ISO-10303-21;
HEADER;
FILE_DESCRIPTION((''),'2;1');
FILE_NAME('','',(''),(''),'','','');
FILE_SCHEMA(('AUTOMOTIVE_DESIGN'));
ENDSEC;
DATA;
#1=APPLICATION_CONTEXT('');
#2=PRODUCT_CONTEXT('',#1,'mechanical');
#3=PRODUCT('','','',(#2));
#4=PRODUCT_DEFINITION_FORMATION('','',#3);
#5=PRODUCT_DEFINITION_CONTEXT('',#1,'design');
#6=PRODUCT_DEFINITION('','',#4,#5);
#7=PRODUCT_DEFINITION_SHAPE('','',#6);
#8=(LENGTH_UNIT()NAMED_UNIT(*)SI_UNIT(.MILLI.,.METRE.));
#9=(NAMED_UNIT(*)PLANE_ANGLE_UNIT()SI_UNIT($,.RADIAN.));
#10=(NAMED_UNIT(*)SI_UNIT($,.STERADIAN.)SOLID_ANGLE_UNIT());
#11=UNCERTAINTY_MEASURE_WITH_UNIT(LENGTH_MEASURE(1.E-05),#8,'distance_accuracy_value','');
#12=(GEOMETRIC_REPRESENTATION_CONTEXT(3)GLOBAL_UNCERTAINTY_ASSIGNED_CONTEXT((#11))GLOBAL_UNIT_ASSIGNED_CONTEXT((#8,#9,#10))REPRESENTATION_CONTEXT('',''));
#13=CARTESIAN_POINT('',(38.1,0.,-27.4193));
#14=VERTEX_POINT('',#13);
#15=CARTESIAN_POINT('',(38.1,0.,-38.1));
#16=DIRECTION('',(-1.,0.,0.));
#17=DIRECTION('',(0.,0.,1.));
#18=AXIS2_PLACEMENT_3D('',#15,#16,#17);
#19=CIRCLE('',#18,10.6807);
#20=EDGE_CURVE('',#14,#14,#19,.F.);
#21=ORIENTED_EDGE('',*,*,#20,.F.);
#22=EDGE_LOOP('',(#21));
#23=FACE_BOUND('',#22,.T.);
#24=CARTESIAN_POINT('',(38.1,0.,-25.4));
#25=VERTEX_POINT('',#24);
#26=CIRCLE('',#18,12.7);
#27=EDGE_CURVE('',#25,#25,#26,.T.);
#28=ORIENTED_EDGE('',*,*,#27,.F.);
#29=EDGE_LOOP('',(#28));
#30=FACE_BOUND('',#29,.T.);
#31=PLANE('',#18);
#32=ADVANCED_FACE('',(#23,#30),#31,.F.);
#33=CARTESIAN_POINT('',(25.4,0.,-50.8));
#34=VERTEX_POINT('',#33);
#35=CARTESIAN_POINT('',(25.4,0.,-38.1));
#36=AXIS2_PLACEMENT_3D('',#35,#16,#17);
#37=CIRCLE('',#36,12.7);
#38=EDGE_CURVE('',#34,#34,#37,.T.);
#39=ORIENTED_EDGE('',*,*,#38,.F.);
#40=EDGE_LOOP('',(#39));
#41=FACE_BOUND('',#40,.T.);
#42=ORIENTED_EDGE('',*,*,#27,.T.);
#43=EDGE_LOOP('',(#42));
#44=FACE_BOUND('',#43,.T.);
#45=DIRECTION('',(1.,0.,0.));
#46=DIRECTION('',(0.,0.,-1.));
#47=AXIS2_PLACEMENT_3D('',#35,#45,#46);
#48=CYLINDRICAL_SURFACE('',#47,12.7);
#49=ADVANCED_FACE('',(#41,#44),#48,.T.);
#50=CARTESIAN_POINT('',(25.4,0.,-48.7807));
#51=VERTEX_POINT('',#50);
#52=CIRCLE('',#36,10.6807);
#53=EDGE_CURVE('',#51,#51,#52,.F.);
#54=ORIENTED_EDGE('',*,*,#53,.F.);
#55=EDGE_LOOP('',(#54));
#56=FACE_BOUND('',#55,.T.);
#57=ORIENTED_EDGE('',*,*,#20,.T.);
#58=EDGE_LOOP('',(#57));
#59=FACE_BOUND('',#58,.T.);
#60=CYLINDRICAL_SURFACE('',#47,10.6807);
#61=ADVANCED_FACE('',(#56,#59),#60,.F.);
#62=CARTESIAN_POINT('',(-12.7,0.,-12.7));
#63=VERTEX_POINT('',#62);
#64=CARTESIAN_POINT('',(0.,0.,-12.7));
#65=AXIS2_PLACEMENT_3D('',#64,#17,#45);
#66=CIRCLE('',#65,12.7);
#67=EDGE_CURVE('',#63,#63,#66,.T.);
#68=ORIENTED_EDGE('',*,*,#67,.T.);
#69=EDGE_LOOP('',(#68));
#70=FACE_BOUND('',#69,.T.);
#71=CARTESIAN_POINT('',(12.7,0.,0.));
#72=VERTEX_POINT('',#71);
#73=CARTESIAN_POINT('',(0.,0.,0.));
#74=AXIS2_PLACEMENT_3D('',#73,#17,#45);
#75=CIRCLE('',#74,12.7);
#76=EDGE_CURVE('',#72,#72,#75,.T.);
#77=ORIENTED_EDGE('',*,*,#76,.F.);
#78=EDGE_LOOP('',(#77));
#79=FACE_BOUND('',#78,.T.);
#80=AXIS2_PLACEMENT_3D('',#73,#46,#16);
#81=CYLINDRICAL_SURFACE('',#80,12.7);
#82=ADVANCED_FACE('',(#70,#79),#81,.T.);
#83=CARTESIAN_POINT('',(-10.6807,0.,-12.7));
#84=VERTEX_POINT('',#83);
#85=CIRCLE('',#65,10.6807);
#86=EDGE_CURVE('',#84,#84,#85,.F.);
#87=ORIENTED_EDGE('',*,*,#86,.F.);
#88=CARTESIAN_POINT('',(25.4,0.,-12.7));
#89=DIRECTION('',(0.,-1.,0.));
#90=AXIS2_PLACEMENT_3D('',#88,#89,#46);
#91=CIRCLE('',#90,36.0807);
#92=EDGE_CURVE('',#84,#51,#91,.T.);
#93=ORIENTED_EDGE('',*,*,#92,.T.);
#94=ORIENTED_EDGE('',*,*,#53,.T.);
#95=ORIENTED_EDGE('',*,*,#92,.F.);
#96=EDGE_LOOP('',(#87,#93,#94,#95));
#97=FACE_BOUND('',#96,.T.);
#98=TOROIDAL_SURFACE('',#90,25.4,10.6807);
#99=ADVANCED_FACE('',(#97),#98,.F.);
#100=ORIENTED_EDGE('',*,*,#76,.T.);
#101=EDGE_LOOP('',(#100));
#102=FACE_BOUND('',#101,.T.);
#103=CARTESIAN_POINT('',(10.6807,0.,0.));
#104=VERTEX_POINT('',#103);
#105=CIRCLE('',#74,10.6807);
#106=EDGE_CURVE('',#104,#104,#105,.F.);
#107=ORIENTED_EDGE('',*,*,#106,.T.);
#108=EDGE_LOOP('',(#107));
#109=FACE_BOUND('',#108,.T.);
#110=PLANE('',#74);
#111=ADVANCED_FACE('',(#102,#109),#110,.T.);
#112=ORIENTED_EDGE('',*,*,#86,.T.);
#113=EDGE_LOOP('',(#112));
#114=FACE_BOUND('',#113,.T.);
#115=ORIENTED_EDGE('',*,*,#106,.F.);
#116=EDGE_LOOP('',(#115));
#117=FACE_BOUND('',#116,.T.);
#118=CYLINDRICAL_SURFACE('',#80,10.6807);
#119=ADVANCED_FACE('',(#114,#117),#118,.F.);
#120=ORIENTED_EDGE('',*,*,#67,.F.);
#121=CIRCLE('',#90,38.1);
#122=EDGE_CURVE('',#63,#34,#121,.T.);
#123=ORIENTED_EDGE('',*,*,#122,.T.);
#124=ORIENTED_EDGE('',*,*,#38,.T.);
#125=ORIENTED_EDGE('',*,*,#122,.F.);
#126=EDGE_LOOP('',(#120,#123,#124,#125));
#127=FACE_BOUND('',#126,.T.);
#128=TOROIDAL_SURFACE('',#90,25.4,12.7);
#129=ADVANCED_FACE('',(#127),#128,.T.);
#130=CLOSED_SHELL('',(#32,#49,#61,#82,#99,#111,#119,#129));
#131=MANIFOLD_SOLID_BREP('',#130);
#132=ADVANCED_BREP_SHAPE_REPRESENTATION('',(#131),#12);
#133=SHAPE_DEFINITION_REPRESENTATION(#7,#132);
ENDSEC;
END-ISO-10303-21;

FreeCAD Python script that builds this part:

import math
import FreeCAD as App
import Part
import Sketcher

V = App.Vector
Q = App.Units.Quantity

doc = App.newDocument("Part")
body = doc.addObject("PartDesign::Body", "Body")

# Sketch on XY plane
sketch1 = body.newObject("Sketcher::SketchObject", "Sketch")
sketch1.AttachmentSupport = (doc.getObject("XY_Plane"), [""])
sketch1.MapMode = "FlatFace"
sketch1.addGeometry([
    Part.Circle(V(0, 0, 0), V(0, 0, 1), 13),
    Part.Circle(V(0, 0, 0), V(0, 0, 1), 11),
], False)
sketch1.addConstraint([
    Sketcher.Constraint("Coincident", 0, 3, -1, 1),
    Sketcher.Constraint("Coincident", 1, 3, -1, 1),
    Sketcher.Constraint("Diameter", 0, Q("1 in")),
    Sketcher.Constraint("Diameter", 1, Q("0.841 in")),
])

# Sketch on XZ plane
sketch2 = body.newObject("Sketcher::SketchObject", "Sketch001")
sketch2.AttachmentSupport = (doc.getObject("XZ_Plane"), [""])
sketch2.MapMode = "FlatFace"
sketch2.addGeometry([
    Part.LineSegment(V(0, 0, 0), V(0, -13, 0)),
    Part.ArcOfCircle(Part.Circle(V(25, -13, 0), V(0, 0, 1), 25), math.radians(180), math.radians(270)),
    Part.LineSegment(V(25, -38, 0), V(38, -38, 0)),
], False)
sketch2.addConstraint([
    Sketcher.Constraint("Tangent", 0, 2, 1, 1),
    Sketcher.Constraint("Tangent", 1, 2, 2, 1),
    Sketcher.Constraint("Vertical", 0),
    Sketcher.Constraint("Horizontal", 2),
    Sketcher.Constraint("Coincident", 0, 1, -1, 1),
    Sketcher.Constraint("Equal", 2, 0),
    Sketcher.Constraint("Radius", 1, Q("1 in")),
    Sketcher.Constraint("DistanceX", 2, 1, 2, 2, Q("0.5 in")),
])
doc.recompute()

additivepipe = body.newObject("PartDesign::AdditivePipe", "AdditivePipe")
additivepipe.Profile = sketch1
additivepipe.Spine = (sketch2, ["Edge1", "Edge2", "Edge3"])

doc.recompute()
